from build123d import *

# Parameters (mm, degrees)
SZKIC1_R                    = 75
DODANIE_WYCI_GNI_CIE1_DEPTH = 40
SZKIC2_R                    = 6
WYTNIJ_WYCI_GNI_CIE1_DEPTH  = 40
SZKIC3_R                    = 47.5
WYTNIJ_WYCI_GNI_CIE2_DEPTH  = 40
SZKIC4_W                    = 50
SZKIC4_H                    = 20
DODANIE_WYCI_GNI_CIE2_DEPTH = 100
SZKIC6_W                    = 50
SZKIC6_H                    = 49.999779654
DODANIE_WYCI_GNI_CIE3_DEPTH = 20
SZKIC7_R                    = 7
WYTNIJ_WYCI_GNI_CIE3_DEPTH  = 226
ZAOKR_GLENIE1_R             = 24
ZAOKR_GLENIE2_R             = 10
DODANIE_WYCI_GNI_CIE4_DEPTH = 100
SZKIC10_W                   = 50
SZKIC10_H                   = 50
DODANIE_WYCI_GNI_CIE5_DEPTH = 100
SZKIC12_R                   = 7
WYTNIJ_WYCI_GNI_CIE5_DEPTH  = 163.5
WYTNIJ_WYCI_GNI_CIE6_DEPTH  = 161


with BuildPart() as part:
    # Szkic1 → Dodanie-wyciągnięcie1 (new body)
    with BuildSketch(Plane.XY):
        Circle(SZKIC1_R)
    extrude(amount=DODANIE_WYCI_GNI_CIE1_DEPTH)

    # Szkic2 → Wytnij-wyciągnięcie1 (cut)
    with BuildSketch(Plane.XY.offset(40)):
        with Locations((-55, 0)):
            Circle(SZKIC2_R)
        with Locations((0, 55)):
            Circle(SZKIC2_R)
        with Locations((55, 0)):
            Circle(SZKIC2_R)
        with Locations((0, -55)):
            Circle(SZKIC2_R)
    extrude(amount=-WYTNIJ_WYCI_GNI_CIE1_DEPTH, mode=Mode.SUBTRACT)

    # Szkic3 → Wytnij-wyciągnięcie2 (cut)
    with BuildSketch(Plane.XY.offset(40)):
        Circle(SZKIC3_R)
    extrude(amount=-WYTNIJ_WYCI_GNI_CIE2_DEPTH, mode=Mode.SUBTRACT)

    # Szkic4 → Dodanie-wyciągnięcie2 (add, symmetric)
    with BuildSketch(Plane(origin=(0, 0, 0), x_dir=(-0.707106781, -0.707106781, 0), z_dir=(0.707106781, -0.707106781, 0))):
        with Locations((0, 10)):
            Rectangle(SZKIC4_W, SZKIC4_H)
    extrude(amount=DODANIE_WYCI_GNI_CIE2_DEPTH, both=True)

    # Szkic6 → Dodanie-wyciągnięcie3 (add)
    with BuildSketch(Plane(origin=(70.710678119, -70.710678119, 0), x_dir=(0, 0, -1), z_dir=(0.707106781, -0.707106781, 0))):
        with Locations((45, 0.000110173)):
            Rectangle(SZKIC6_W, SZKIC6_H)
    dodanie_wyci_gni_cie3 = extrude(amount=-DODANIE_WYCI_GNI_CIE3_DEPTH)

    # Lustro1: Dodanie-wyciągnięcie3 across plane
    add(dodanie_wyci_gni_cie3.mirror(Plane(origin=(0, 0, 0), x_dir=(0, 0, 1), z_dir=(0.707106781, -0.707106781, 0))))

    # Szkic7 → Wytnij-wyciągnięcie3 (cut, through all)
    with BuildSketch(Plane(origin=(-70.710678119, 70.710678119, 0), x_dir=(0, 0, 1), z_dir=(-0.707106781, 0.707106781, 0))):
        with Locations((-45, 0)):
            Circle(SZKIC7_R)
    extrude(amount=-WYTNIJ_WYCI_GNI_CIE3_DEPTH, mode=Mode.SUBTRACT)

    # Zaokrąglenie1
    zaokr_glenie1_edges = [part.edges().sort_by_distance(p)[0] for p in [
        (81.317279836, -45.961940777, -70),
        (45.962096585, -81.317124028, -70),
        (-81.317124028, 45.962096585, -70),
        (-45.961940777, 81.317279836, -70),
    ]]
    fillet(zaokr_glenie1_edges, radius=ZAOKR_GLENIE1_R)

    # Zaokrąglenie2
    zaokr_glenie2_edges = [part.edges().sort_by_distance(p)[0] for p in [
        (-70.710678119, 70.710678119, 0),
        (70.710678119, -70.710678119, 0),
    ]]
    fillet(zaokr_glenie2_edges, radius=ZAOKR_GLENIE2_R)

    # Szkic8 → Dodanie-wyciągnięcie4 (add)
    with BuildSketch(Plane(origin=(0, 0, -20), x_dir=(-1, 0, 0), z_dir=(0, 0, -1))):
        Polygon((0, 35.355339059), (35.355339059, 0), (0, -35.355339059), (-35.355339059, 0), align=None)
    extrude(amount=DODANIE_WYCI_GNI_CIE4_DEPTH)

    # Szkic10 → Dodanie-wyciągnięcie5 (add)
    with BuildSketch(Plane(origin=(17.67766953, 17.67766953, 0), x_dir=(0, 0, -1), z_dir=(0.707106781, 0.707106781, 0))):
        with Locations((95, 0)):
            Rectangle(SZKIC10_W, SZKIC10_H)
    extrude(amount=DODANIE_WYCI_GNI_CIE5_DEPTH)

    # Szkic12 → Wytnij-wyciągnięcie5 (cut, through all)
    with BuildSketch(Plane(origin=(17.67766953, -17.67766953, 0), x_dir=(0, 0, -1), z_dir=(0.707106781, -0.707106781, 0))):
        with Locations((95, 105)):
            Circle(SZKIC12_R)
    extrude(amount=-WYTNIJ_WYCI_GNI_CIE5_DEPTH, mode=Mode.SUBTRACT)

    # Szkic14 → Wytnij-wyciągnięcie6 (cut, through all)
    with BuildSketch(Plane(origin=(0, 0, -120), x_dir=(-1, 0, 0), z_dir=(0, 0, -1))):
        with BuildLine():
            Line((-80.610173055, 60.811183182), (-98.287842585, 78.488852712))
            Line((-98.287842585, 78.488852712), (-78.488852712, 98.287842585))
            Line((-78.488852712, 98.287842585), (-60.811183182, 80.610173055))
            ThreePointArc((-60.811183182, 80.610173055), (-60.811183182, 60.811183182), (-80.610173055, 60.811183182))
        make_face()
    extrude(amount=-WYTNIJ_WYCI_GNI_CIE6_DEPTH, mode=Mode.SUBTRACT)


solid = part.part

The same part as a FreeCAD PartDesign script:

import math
import FreeCAD as App
import Part
import Sketcher
Q = App.Units.Quantity


def edges_at(feature, points):
    """Names of the edges that pass closest to the given points."""
    edges = feature.Shape.Edges
    near = lambda p: min(range(len(edges)), key=lambda i: edges[i].distToShape(Part.Vertex(*p))[0])
    return sorted({f"Edge{near(p) + 1}" for p in points})

doc = App.newDocument("Part")
body = doc.addObject("PartDesign::Body", "Body")

sketch1 = body.newObject("Sketcher::SketchObject", "Sketch")
sketch1.AttachmentSupport = (doc.getObject("XY_Plane"), [""])
sketch1.MapMode = "FlatFace"
sketch1.addGeometry(Part.Circle(App.Vector(0, 0, 0), App.Vector(0, 0, 1), 75), False)
sketch1.addConstraint([
    Sketcher.Constraint("Coincident", 0, 3, -1, 1),
    Sketcher.Constraint("Diameter", 0, 150.0),
])
pad1 = body.newObject("PartDesign::Pad", "Pad")
pad1.Profile = sketch1
pad1.Length = 40

sketch2 = body.newObject("Sketcher::SketchObject", "Sketch001")
sketch2.AttachmentSupport = (doc.getObject("XY_Plane"), [""])
sketch2.MapMode = "FlatFace"
sketch2.AttachmentOffset = App.Placement(App.Vector(0, 0, 40), App.Rotation())
sketch2.addGeometry([
    Part.Circle(App.Vector(-55, 0, 0), App.Vector(0, 0, 1), 6),
    Part.Circle(App.Vector(0, 55, 0), App.Vector(0, 0, 1), 6),
    Part.Circle(App.Vector(55, 0, 0), App.Vector(0, 0, 1), 6),
    Part.Circle(App.Vector(0, -55, 0), App.Vector(0, 0, 1), 6),
], False)
sketch2.addConstraint([
    Sketcher.Constraint("Equal", 0, 1),
    Sketcher.Constraint("Equal", 1, 2),
    Sketcher.Constraint("Equal", 2, 3),
    Sketcher.Constraint("Symmetric", 0, 3, 2, 3, -1, 1),
    Sketcher.Constraint("Symmetric", 1, 3, 3, 3, -1, 1),
    Sketcher.Constraint("PointOnObject", 0, 3, -1),
    Sketcher.Constraint("PointOnObject", 1, 3, -2),
    Sketcher.Constraint("Diameter", 0, 12.0),
    Sketcher.Constraint("DistanceX", 0, 3, -1, 1, 55.0),
    Sketcher.Constraint("DistanceY", -1, 1, 1, 3, 55.0),
])
pocket1 = body.newObject("PartDesign::Pocket", "Pocket")
pocket1.Profile = sketch2
pocket1.Length = 40

sketch3 = body.newObject("Sketcher::SketchObject", "Sketch002")
sketch3.AttachmentSupport = (doc.getObject("XY_Plane"), [""])
sketch3.MapMode = "FlatFace"
sketch3.AttachmentOffset = App.Placement(App.Vector(0, 0, 40), App.Rotation())
sketch3.addGeometry(Part.Circle(App.Vector(0, 0, 0), App.Vector(0, 0, 1), 48), False)
sketch3.addConstraint([
    Sketcher.Constraint("Coincident", 0, 3, -1, 1),
    Sketcher.Constraint("Diameter", 0, 95.0),
])
pocket2 = body.newObject("PartDesign::Pocket", "Pocket001")
pocket2.Profile = sketch3
pocket2.Length = 40

sketch4 = body.newObject("Sketcher::SketchObject", "Sketch003")
sketch4.Placement = App.Placement(App.Vector(0, 0, 0), App.Rotation(App.Vector(-0.707106781, -0.707106781, 0), App.Vector(0, 0, -0.999999999), App.Vector(0.707106781, -0.707106781, 0), "ZXY"))
sketch4.addGeometry([
    Part.LineSegment(App.Vector(-25, 20, 0), App.Vector(-25, 0, 0)),
    Part.LineSegment(App.Vector(-25, 0, 0), App.Vector(25, 0, 0)),
    Part.LineSegment(App.Vector(25, 0, 0), App.Vector(25, 20, 0)),
    Part.LineSegment(App.Vector(25, 20, 0), App.Vector(-25, 20, 0)),
], False)
sketch4.addConstraint([
    Sketcher.Constraint("Coincident", 0, 2, 1, 1),
    Sketcher.Constraint("Coincident", 1, 2, 2, 1),
    Sketcher.Constraint("Coincident", 2, 2, 3, 1),
    Sketcher.Constraint("Coincident", 3, 2, 0, 1),
    Sketcher.Constraint("Vertical", 0),
    Sketcher.Constraint("Horizontal", 1),
    Sketcher.Constraint("Vertical", 2),
    Sketcher.Constraint("Horizontal", 3),
    Sketcher.Constraint("Symmetric", 0, 2, 1, 2, -1, 1),
    Sketcher.Constraint("DistanceX", 1, 1, 1, 2, 50.0),
    Sketcher.Constraint("DistanceY", 0, 2, 0, 1, 20.0),
])
pad2 = body.newObject("PartDesign::Pad", "Pad001")
pad2.Profile = sketch4
pad2.Length = 200
pad2.Midplane = True

sketch5 = body.newObject("Sketcher::SketchObject", "Sketch004")
sketch5.Placement = App.Placement(App.Vector(70.710678, -70.710678, 0), App.Rotation(App.Vector(0, 0, -1), App.Vector(0.707106781, 0.707106781, 0), App.Vector(0.707106781, -0.707106781, 0), "ZXY"))
sketch5.addGeometry([
    Part.LineSegment(App.Vector(20, 25, 0), App.Vector(20, -25, 0)),
    Part.LineSegment(App.Vector(20, -25, 0), App.Vector(70, -25, 0)),
    Part.LineSegment(App.Vector(70, -25, 0), App.Vector(70, 25, 0)),
    Part.LineSegment(App.Vector(70, 25, 0), App.Vector(20, 25, 0)),
], False)
sketch5.addConstraint([
    Sketcher.Constraint("Coincident", 0, 2, 1, 1),
    Sketcher.Constraint("Coincident", 1, 2, 2, 1),
    Sketcher.Constraint("Coincident", 2, 2, 3, 1),
    Sketcher.Constraint("Coincident", 3, 2, 0, 1),
    Sketcher.Constraint("Vertical", 0),
    Sketcher.Constraint("Horizontal", 1),
    Sketcher.Constraint("Vertical", 2),
    Sketcher.Constraint("Horizontal", 3),
    Sketcher.Constraint("DistanceX", 1, 1, 1, 2, 50.0),
    Sketcher.Constraint("DistanceX", -1, 1, 0, 2, 20.0),
    Sketcher.Constraint("DistanceY", -1, 1, 2, 2, 25.0),
    Sketcher.Constraint("DistanceY", 0, 2, 0, 1, 49.99978),
])
pad3 = body.newObject("PartDesign::Pad", "Pad002")
pad3.Profile = sketch5
pad3.Length = 20
pad3.Reversed = True
doc.recompute()

datumplane = body.newObject("PartDesign::Plane", "DatumPlane")
datumplane.Placement = App.Placement(App.Vector(0, 0, 0), App.Rotation(App.Vector(-0.707106781, -0.707106781, 0), App.Vector(0, 0, -1), App.Vector(0.707106781, -0.707106781, 0), "ZXY"))
mirrored = body.newObject("PartDesign::Mirrored", "Mirrored")
mirrored.Originals = [pad3]
mirrored.MirrorPlane = (datumplane, [""])
body.Tip = mirrored

sketch6 = body.newObject("Sketcher::SketchObject", "Sketch005")
sketch6.Placement = App.Placement(App.Vector(-70.710678, 70.710678, 0), App.Rotation(App.Vector(0, 0, 1), App.Vector(0.707106781, 0.707106781, 0), App.Vector(-0.707106781, 0.707106781, 0), "ZXY"))
sketch6.addGeometry(Part.Circle(App.Vector(-45, 0, 0), App.Vector(0, 0, 1), 7), False)
sketch6.addConstraint([
    Sketcher.Constraint("PointOnObject", 0, 3, -1),
    Sketcher.Constraint("Diameter", 0, 14.0),
    Sketcher.Constraint("DistanceX", 0, 3, -1, 1, 45.0),
])
pocket3 = body.newObject("PartDesign::Pocket", "Pocket002")
pocket3.Profile = sketch6
pocket3.Type = "ThroughAll"
doc.recompute()

fillet = body.newObject("PartDesign::Fillet", "Fillet")
fillet.Base = (pocket3, edges_at(pocket3, [
    (81.317, -45.962, -70),
    (45.962, -81.317, -70),
    (-81.317, 45.962, -70),
    (-45.962, 81.317, -70),
]))
fillet.Radius = 24
doc.recompute()

fillet2 = body.newObject("PartDesign::Fillet", "Fillet001")
fillet2.Base = (fillet, edges_at(fillet, [(-70.711, 70.711, 0), (70.711, -70.711, 0)]))
fillet2.Radius = 10

sketch7 = body.newObject("Sketcher::SketchObject", "Sketch006")
sketch7.AttachmentSupport = (doc.getObject("XY_Plane"), [""])
sketch7.MapMode = "FlatFace"
sketch7.AttachmentOffset = App.Placement(App.Vector(0, 0, -20), App.Rotation())
sketch7.addGeometry([
    Part.LineSegment(App.Vector(-35, 0, 0), App.Vector(0, 35, 0)),
    Part.LineSegment(App.Vector(0, 35, 0), App.Vector(35, 0, 0)),
    Part.LineSegment(App.Vector(35, 0, 0), App.Vector(0, -35, 0)),
    Part.LineSegment(App.Vector(0, -35, 0), App.Vector(-35, 0, 0)),
], False)
sketch7.addConstraint([
    Sketcher.Constraint("Coincident", 0, 2, 1, 1),
    Sketcher.Constraint("Coincident", 1, 2, 2, 1),
    Sketcher.Constraint("Coincident", 2, 2, 3, 1),
    Sketcher.Constraint("Coincident", 3, 2, 0, 1),
    Sketcher.Constraint("Symmetric", 0, 2, 2, 2, -1, 1),
    Sketcher.Constraint("Symmetric", 1, 2, 3, 2, -1, 1),
    Sketcher.Constraint("PointOnObject", 0, 2, -2),
    Sketcher.Constraint("PointOnObject", 1, 2, -1),
    Sketcher.Constraint("Perpendicular", 0, 1),
    Sketcher.Constraint("Distance", 0, 50.0),
])
pad4 = body.newObject("PartDesign::Pad", "Pad003")
pad4.Profile = sketch7
pad4.Length = 100
pad4.Reversed = True

sketch8 = body.newObject("Sketcher::SketchObject", "Sketch007")
sketch8.Placement = App.Placement(App.Vector(17.67767, 17.67767, 0), App.Rotation(App.Vector(0, 0, -1), App.Vector(-0.707106781, 0.707106781, 0), App.Vector(0.707106781, 0.707106781, 0), "ZXY"))
sketch8.addGeometry([
    Part.LineSegment(App.Vector(70, 25, 0), App.Vector(70, -25, 0)),
    Part.LineSegment(App.Vector(70, -25, 0), App.Vector(120, -25, 0)),
    Part.LineSegment(App.Vector(120, -25, 0), App.Vector(120, 25, 0)),
    Part.LineSegment(App.Vector(120, 25, 0), App.Vector(70, 25, 0)),
], False)
sketch8.addConstraint([
    Sketcher.Constraint("Coincident", 0, 2, 1, 1),
    Sketcher.Constraint("Coincident", 1, 2, 2, 1),
    Sketcher.Constraint("Coincident", 2, 2, 3, 1),
    Sketcher.Constraint("Coincident", 3, 2, 0, 1),
    Sketcher.Constraint("Vertical", 0),
    Sketcher.Constraint("Horizontal", 1),
    Sketcher.Constraint("Vertical", 2),
    Sketcher.Constraint("Horizontal", 3),
    Sketcher.Constraint("Equal", 3, 0),
    Sketcher.Constraint("DistanceX", 1, 1, 1, 2, 50.0),
    Sketcher.Constraint("DistanceX", -1, 1, 0, 2, 70.0),
    Sketcher.Constraint("DistanceY", 0, 2, -1, 1, 25.0),
])
pad5 = body.newObject("PartDesign::Pad", "Pad004")
pad5.Profile = sketch8
pad5.Length = 100

sketch9 = body.newObject("Sketcher::SketchObject", "Sketch008")
sketch9.Placement = App.Placement(App.Vector(17.67767, -17.67767, 0), App.Rotation(App.Vector(0, 0, -1), App.Vector(0.707106781, 0.707106781, 0), App.Vector(0.707106781, -0.707106781, 0), "ZXY"))
sketch9.addGeometry(Part.Circle(App.Vector(95, 105, 0), App.Vector(0, 0, 1), 7), False)
sketch9.addConstraint([
    Sketcher.Constraint("Diameter", 0, 14.0),
    Sketcher.Constraint("DistanceX", -1, 1, 0, 3, 95.0),
    Sketcher.Constraint("DistanceY", -1, 1, 0, 3, 105.0),
])
pocket4 = body.newObject("PartDesign::Pocket", "Pocket003")
pocket4.Profile = sketch9
pocket4.Type = "ThroughAll"

sketch10 = body.newObject("Sketcher::SketchObject", "Sketch009")
sketch10.AttachmentSupport = (doc.getObject("XY_Plane"), [""])
sketch10.MapMode = "FlatFace"
sketch10.AttachmentOffset = App.Placement(App.Vector(0, 0, -120), App.Rotation())
sketch10.addGeometry([
    Part.LineSegment(App.Vector(98, 78, 0), App.Vector(81, 61, 0)),
    Part.ArcOfCircle(Part.Circle(App.Vector(71, 71, 0), App.Vector(0, 0, 1), 14), math.radians(135), math.radians(315)),
    Part.LineSegment(App.Vector(61, 81, 0), App.Vector(78, 98, 0)),
    Part.LineSegment(App.Vector(78, 98, 0), App.Vector(98, 78, 0)),
], False)
sketch10.addConstraint([
    Sketcher.Constraint("Tangent", 0, 2, 1, 2),
    Sketcher.Constraint("Tangent", 1, 1, 2, 1),
    Sketcher.Constraint("Coincident", 2, 2, 3, 1),
    Sketcher.Constraint("Coincident", 3, 2, 0, 1),
    Sketcher.Constraint("Parallel", 0, 2),
    Sketcher.Constraint("Perpendicular", 2, 3),
    Sketcher.Constraint("Radius", 1, 14.0),
    Sketcher.Constraint("Angle", 0, Q("-135 deg")),
    Sketcher.Constraint("Distance", 0, 25.0),
    Sketcher.Constraint("DistanceX", -1, 1, 1, 3, 70.710678),
    Sketcher.Constraint("DistanceY", -1, 1, 1, 3, 70.710678),
])
pocket5 = body.newObject("PartDesign::Pocket", "Pocket004")
pocket5.Profile = sketch10
pocket5.Type = "ThroughAll"
pocket5.Reversed = True

doc.recompute()
